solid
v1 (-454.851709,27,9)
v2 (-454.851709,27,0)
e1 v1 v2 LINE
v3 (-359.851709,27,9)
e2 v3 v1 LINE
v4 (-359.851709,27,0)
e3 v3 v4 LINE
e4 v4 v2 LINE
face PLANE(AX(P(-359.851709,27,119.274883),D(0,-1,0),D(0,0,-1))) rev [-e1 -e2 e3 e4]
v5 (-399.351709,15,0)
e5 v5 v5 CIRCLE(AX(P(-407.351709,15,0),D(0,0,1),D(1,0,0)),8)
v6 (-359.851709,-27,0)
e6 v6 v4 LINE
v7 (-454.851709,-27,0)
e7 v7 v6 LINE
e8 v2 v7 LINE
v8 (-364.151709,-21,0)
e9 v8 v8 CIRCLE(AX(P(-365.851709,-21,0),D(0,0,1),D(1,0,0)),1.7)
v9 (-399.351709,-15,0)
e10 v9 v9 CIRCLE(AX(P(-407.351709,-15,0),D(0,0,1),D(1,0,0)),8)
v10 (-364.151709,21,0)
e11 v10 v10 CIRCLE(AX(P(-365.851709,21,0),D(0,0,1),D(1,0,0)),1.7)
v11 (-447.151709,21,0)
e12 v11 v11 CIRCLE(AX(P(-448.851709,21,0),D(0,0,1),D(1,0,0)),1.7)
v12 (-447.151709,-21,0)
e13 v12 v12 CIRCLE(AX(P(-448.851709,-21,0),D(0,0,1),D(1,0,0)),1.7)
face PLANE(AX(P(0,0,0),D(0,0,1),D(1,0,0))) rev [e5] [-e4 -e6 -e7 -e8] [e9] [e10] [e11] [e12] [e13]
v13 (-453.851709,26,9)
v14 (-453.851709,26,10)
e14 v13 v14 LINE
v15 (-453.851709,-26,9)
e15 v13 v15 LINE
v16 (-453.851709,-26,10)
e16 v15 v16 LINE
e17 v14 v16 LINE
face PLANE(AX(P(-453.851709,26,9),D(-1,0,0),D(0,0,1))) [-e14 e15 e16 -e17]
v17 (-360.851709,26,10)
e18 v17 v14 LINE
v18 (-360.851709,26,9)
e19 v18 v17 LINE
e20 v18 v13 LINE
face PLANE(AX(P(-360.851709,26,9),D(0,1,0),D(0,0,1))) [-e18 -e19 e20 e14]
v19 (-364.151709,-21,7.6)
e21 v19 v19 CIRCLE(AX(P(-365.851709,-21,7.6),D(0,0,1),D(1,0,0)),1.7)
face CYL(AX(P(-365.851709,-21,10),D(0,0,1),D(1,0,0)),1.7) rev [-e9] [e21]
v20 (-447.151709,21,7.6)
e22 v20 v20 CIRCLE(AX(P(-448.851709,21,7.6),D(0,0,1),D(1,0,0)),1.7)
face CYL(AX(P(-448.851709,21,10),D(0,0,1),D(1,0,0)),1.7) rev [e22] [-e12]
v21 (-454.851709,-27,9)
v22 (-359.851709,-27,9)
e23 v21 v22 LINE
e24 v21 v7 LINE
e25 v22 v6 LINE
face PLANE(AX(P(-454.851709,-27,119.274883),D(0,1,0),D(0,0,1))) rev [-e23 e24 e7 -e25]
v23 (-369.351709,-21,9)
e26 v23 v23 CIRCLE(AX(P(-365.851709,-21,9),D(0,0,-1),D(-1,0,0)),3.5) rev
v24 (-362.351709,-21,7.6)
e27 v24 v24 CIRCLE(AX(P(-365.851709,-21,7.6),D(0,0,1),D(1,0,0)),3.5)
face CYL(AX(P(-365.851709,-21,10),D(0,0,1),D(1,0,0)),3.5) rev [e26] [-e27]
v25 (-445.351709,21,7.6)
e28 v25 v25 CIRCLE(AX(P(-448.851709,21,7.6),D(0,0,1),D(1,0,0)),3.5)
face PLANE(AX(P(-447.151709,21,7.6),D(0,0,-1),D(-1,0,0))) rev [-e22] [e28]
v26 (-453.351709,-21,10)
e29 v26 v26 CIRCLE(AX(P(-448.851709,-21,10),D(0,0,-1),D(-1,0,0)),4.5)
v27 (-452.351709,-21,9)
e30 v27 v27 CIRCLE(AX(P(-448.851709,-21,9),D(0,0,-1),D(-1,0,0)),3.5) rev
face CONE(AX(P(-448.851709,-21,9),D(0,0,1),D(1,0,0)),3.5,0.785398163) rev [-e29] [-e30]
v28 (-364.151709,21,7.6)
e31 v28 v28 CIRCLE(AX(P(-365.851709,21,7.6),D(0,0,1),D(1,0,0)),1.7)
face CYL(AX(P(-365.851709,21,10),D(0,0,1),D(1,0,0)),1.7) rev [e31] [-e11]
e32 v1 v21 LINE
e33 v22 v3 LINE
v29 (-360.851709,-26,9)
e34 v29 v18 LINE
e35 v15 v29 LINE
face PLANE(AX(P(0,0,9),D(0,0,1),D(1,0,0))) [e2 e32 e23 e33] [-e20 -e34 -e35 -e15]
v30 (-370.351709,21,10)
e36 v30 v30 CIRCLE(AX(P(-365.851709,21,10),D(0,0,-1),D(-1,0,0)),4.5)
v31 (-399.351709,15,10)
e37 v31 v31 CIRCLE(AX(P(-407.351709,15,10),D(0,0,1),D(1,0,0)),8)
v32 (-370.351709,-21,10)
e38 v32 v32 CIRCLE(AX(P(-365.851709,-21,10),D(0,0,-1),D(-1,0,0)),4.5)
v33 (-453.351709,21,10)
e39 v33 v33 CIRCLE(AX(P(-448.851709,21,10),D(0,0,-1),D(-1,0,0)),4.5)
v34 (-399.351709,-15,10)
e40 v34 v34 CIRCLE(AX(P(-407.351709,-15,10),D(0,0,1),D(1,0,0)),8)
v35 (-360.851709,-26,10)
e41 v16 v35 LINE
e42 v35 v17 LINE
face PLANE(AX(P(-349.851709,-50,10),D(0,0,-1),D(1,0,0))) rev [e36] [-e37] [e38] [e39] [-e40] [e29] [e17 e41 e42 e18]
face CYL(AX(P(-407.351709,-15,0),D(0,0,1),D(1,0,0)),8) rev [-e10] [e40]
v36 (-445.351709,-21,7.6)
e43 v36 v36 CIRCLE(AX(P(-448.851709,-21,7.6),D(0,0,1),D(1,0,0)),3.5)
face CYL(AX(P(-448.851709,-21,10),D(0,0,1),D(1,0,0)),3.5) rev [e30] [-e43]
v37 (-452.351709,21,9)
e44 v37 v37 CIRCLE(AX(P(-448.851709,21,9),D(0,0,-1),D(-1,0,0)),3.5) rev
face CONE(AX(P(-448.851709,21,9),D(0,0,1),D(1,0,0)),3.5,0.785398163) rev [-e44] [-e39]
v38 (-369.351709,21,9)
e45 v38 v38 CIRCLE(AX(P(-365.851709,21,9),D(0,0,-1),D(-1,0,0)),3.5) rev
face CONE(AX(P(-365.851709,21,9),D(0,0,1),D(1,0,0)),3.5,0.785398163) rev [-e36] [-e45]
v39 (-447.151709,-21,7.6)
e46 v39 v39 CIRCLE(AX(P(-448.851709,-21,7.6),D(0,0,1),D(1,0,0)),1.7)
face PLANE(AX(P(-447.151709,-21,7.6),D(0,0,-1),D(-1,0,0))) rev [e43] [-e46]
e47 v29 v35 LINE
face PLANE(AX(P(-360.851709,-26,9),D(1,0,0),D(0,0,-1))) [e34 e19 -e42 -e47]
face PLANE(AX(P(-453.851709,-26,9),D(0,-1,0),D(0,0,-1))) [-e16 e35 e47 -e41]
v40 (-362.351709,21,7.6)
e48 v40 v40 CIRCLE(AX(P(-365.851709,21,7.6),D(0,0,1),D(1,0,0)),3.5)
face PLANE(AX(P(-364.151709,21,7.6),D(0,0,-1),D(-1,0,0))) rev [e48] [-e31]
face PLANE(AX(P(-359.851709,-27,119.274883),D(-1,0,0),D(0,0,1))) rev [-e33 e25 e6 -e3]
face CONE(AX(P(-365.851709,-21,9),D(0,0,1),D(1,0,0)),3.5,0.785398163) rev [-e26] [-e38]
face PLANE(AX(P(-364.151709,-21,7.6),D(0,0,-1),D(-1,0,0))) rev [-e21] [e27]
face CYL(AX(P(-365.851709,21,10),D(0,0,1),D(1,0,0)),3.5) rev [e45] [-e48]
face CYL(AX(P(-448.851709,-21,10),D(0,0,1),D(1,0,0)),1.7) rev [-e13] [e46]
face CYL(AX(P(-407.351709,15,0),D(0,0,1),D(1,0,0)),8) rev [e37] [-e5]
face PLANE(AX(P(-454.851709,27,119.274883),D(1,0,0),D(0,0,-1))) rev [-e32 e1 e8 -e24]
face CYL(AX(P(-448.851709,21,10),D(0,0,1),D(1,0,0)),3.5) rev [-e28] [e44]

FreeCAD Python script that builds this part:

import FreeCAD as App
import Part
import Sketcher
from FreeCAD import Vector


def edges_at(feature, points):
    """Names of the edges that pass closest to the given points."""
    edges = feature.Shape.Edges
    near = lambda p: min(range(len(edges)), key=lambda i: edges[i].distToShape(Part.Vertex(*p))[0])
    return sorted({f"Edge{near(p) + 1}" for p in points})


def add_polygon(sketch, points):
    """Adds a closed chain of lines whose ends are joined by coincident constraints."""
    first, n = sketch.GeometryCount, len(points)
    for a, b in zip(points, points[1:] + points[:1]):
        sketch.addGeometry(Part.LineSegment(App.Vector(*a, 0), App.Vector(*b, 0)), False)
    for i in range(n):
        sketch.addConstraint(Sketcher.Constraint("Coincident", first + i, 2, first + (i + 1) % n, 1))

doc = App.newDocument("Part")
body = doc.addObject("PartDesign::Body", "Body")

sketch1 = body.newObject("Sketcher::SketchObject", "Sketch")
sketch1.AttachmentSupport = (doc.getObject("XY_Plane"), [""])
sketch1.MapMode = "FlatFace"
add_polygon(sketch1, [(-454.851709, 27), (-454.851709, -27), (-359.851709, -27), (-359.851709, 27)])
sketch1.addConstraint(Sketcher.Constraint("Vertical", 0))
sketch1.addConstraint(Sketcher.Constraint("Horizontal", 1))
sketch1.addConstraint(Sketcher.Constraint("Vertical", 2))
sketch1.addConstraint(Sketcher.Constraint("Horizontal", 3))
sketch1.addConstraint(Sketcher.Constraint("DistanceX", 1, 1, 1, 2, 95.0))
sketch1.addConstraint(Sketcher.Constraint("DistanceY", 0, 2, 0, 1, 54.0))
sketch1.addConstraint(Sketcher.Constraint("DistanceY", 0, 2, -1, 1, 27.0))
sketch1.addConstraint(Sketcher.Constraint("DistanceX", 0, 2, -1, 1, 454.851709))
pad1 = body.newObject("PartDesign::Pad", "Pad")
pad1.Profile = sketch1
pad1.Length = 10

sketch2 = body.newObject("Sketcher::SketchObject", "Sketch001")
sketch2.AttachmentSupport = (doc.getObject("XY_Plane"), [""])
sketch2.MapMode = "FlatFace"
sketch2.AttachmentOffset = App.Placement(Vector(0, 0, 10), App.Rotation())
add_polygon(sketch2, [(-454.851709, 27), (-454.851709, -27), (-359.851709, -27), (-359.851709, 27)])
add_polygon(sketch2, [(-360.851709, -26), (-453.851709, -26), (-453.851709, 26), (-360.851709, 26)])
sketch2.addConstraint(Sketcher.Constraint("Vertical", 0))
sketch2.addConstraint(Sketcher.Constraint("Horizontal", 1))
sketch2.addConstraint(Sketcher.Constraint("Vertical", 2))
sketch2.addConstraint(Sketcher.Constraint("Horizontal", 3))
sketch2.addConstraint(Sketcher.Constraint("Horizontal", 4))
sketch2.addConstraint(Sketcher.Constraint("Vertical", 5))
sketch2.addConstraint(Sketcher.Constraint("Horizontal", 6))
sketch2.addConstraint(Sketcher.Constraint("Vertical", 7))
sketch2.addConstraint(Sketcher.Constraint("DistanceX", 1, 1, 1, 2, 95.0))
sketch2.addConstraint(Sketcher.Constraint("DistanceX", 4, 2, 4, 1, 93.0))
sketch2.addConstraint(Sketcher.Constraint("DistanceY", 0, 2, 0, 1, 54.0))
sketch2.addConstraint(Sketcher.Constraint("DistanceY", 5, 1, 5, 2, 52.0))
sketch2.addConstraint(Sketcher.Constraint("DistanceY", 0, 2, -1, 1, 27.0))
sketch2.addConstraint(Sketcher.Constraint("DistanceY", 4, 2, -1, 1, 26.0))
sketch2.addConstraint(Sketcher.Constraint("DistanceX", 0, 2, 4, 2, 1.0))
sketch2.addConstraint(Sketcher.Constraint("DistanceX", 0, 2, -1, 1, 454.851709))
pocket1 = body.newObject("PartDesign::Pocket", "Pocket")
pocket1.Profile = sketch2
pocket1.Length = 1

sketch3 = body.newObject("Sketcher::SketchObject", "Sketch002")
sketch3.AttachmentSupport = (doc.getObject("XY_Plane"), [""])
sketch3.MapMode = "FlatFace"
sketch3.AttachmentOffset = App.Placement(Vector(0, 0, 10), App.Rotation())
sketch3.addGeometry(Part.Circle(Vector(-448.851709, 21, 0), Vector(0, 0, 1), 1.7), False)
sketch3.addGeometry(Part.Circle(Vector(-365.851709, 21, 0), Vector(0, 0, 1), 1.7), False)
sketch3.addGeometry(Part.Circle(Vector(-365.851709, -21, 0), Vector(0, 0, 1), 1.7), False)
sketch3.addGeometry(Part.Circle(Vector(-448.851709, -21, 0), Vector(0, 0, 1), 1.7), False)
sketch3.addConstraint(Sketcher.Constraint("Equal", 0, 1))
sketch3.addConstraint(Sketcher.Constraint("Equal", 1, 2))
sketch3.addConstraint(Sketcher.Constraint("Equal", 2, 3))
sketch3.addConstraint(Sketcher.Constraint("Symmetric", 1, 3, 2, 3, -1))
sketch3.addConstraint(Sketcher.Constraint("Symmetric", 0, 3, 3, 3, -1))
sketch3.addConstraint(Sketcher.Constraint("Horizontal", 0, 3, 1, 3))
sketch3.addConstraint(Sketcher.Constraint("Diameter", 0, 3.4))
sketch3.addConstraint(Sketcher.Constraint("DistanceY", -1, 1, 0, 3, 21.0))
sketch3.addConstraint(Sketcher.Constraint("DistanceX", 0, 3, 1, 3, 83.0))
sketch3.addConstraint(Sketcher.Constraint("DistanceX", 0, 3, -1, 1, 448.851709))
doc.recompute()
hole = body.newObject("PartDesign::Hole", "Hole")
hole.Profile = sketch3
hole.ThreadType = "None"
hole.Diameter = 3.4
hole.DepthType = "ThroughAll"
hole.HoleCutType = "Counterbore"
hole.HoleCutDiameter = 7
hole.HoleCutDepth = 2.4
doc.recompute()

chamfer = body.newObject("PartDesign::Chamfer", "Chamfer")
chamfer.Base = (hole, edges_at(hole, [
    (-452.352, -21, 10),
    (-369.352, -21, 10),
    (-369.352, 21, 10),
    (-452.352, 21, 10),
]))
chamfer.Size = 1

sketch4 = body.newObject("Sketcher::SketchObject", "Sketch003")
sketch4.AttachmentSupport = (doc.getObject("XY_Plane"), [""])
sketch4.MapMode = "FlatFace"
sketch4.AttachmentOffset = App.Placement(Vector(0, 0, 10), App.Rotation())
sketch4.addGeometry(Part.Circle(Vector(-407.351709, 15, 0), Vector(0, 0, 1), 8), False)
sketch4.addGeometry(Part.Circle(Vector(-407.351709, -15, 0), Vector(0, 0, 1), 8), False)
sketch4.addConstraint(Sketcher.Constraint("Equal", 0, 1))
sketch4.addConstraint(Sketcher.Constraint("Symmetric", 0, 3, 1, 3, -1))
sketch4.addConstraint(Sketcher.Constraint("Diameter", 0, 16.0))
sketch4.addConstraint(Sketcher.Constraint("DistanceY", -1, 1, 0, 3, 15.0))
sketch4.addConstraint(Sketcher.Constraint("DistanceX", 0, 3, -1, 1, 407.351709))
pocket2 = body.newObject("PartDesign::Pocket", "Pocket001")
pocket2.Profile = sketch4
pocket2.Length = 10

doc.recompute()
